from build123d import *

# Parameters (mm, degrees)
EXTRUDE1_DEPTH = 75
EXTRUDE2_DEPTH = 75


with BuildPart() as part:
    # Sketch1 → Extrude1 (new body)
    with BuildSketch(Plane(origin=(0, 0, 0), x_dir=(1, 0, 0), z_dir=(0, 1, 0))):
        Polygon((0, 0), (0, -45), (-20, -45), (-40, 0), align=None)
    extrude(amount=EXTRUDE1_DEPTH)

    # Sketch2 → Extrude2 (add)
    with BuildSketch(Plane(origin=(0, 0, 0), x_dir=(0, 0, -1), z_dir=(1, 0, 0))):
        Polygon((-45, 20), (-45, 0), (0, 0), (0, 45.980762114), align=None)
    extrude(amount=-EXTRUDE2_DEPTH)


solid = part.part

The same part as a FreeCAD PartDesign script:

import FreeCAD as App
import Part
import Sketcher

V = App.Vector
Q = App.Units.Quantity

doc = App.newDocument("Part")
body = doc.addObject("PartDesign::Body", "Body")

# Sketch on XZ plane
sketch1 = body.newObject("Sketcher::SketchObject", "Sketch")
sketch1.AttachmentSupport = (doc.getObject("XZ_Plane"), [""])
sketch1.MapMode = "FlatFace"
sketch1.addGeometry([
    Part.LineSegment(V(0, 45, 0), V(0, 0, 0)),
    Part.LineSegment(V(0, 0, 0), V(-40, 0, 0)),
    Part.LineSegment(V(-40, 0, 0), V(-20, 45, 0)),
    Part.LineSegment(V(-20, 45, 0), V(0, 45, 0)),
], False)
sketch1.addConstraint([
    Sketcher.Constraint("Coincident", 0, 2, 1, 1),
    Sketcher.Constraint("Coincident", 1, 2, 2, 1),
    Sketcher.Constraint("Coincident", 2, 2, 3, 1),
    Sketcher.Constraint("Coincident", 3, 2, 0, 1),
    Sketcher.Constraint("Vertical", 0),
    Sketcher.Constraint("Horizontal", 1),
    Sketcher.Constraint("Horizontal", 3),
    Sketcher.Constraint("Coincident", 0, 2, -1, 1),
    Sketcher.Constraint("DistanceX", 1, 2, 1, 1, Q("40 mm")),
    Sketcher.Constraint("DistanceX", 3, 1, 3, 2, Q("20 mm")),
    Sketcher.Constraint("DistanceY", 0, 2, 0, 1, Q("45 mm")),
])
pad1 = body.newObject("PartDesign::Pad", "Pad")
pad1.Profile = sketch1
pad1.Length = 75
pad1.Reversed = True

# Sketch on YZ plane
sketch2 = body.newObject("Sketcher::SketchObject", "Sketch001")
sketch2.AttachmentSupport = (doc.getObject("YZ_Plane"), [""])
sketch2.MapMode = "FlatFace"
sketch2.addGeometry([
    Part.LineSegment(V(20, 45, 0), V(0, 45, 0)),
    Part.LineSegment(V(0, 45, 0), V(0, 0, 0)),
    Part.LineSegment(V(0, 0, 0), V(45.980762, 0, 0)),
    Part.LineSegment(V(45.980762, 0, 0), V(20, 45, 0)),
], False)
sketch2.addConstraint([
    Sketcher.Constraint("Coincident", 0, 2, 1, 1),
    Sketcher.Constraint("Coincident", 1, 2, 2, 1),
    Sketcher.Constraint("Coincident", 2, 2, 3, 1),
    Sketcher.Constraint("Coincident", 3, 2, 0, 1),
    Sketcher.Constraint("Horizontal", 0),
    Sketcher.Constraint("Vertical", 1),
    Sketcher.Constraint("Horizontal", 2),
    Sketcher.Constraint("Coincident", 1, 2, -1, 1),
    Sketcher.Constraint("DistanceX", 0, 2, 0, 1, Q("20 mm")),
    Sketcher.Constraint("DistanceY", 1, 2, 1, 1, Q("45 mm")),
    Sketcher.Constraint("Angle", 3, Q("120 deg")),
])
pad2 = body.newObject("PartDesign::Pad", "Pad001")
pad2.Profile = sketch2
pad2.Length = 75
pad2.Reversed = True

doc.recompute()
